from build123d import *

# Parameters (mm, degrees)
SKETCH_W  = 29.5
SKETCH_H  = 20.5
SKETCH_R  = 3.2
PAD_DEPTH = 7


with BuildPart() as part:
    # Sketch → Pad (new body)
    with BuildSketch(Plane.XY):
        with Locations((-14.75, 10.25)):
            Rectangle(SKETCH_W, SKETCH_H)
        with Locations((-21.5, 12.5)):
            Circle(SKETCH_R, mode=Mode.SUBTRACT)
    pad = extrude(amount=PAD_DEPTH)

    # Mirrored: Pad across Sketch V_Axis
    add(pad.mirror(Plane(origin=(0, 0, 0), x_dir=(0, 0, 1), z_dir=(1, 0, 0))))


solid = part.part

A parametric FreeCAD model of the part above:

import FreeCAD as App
import Part
import Sketcher

V = App.Vector
Q = App.Units.Quantity


def add_polygon(sketch, points):
    """Adds a closed chain of lines whose ends are joined by coincident constraints."""
    first, n = sketch.GeometryCount, len(points)
    for a, b in zip(points, points[1:] + points[:1]):
        sketch.addGeometry(Part.LineSegment(App.Vector(*a, 0), App.Vector(*b, 0)), False)
    for i in range(n):
        sketch.addConstraint(Sketcher.Constraint("Coincident", first + i, 2, first + (i + 1) % n, 1))

doc = App.newDocument("Part")
body = doc.addObject("PartDesign::Body", "Body")

sketch1 = doc.addObject("Sketcher::SketchObject", "Sketch")
body.addObject(sketch1)
sketch1.AttachmentSupport = (doc.XY_Plane, [""])
sketch1.MapMode = "FlatFace"
add_polygon(sketch1, [(-29.5, 20.5), (-29.5, 0), (0, 0), (0, 20.5)])
sketch1.addGeometry(Part.Circle(V(-21.5, 12.5, 0), V(0, 0, 1), 3.2), False)
sketch1.addConstraint(Sketcher.Constraint("Vertical", 0))
sketch1.addConstraint(Sketcher.Constraint("Horizontal", 1))
sketch1.addConstraint(Sketcher.Constraint("Vertical", 2))
sketch1.addConstraint(Sketcher.Constraint("Horizontal", 3))
sketch1.addConstraint(Sketcher.Constraint("Coincident", 1, 2, -1, 1))
sketch1.addConstraint(Sketcher.Constraint("Diameter", 4, Q("6.4 mm")))
sketch1.addConstraint(Sketcher.Constraint("DistanceX", 1, 1, 1, 2, Q("29.5 mm")))
sketch1.addConstraint(Sketcher.Constraint("DistanceY", 0, 2, 0, 1, Q("20.5 mm")))
sketch1.addConstraint(Sketcher.Constraint("DistanceX", 0, 2, 4, 3, Q("8 mm")))
sketch1.addConstraint(Sketcher.Constraint("DistanceY", 4, 3, 2, 2, Q("8 mm")))
pad1 = doc.addObject("PartDesign::Pad", "Pad")
body.addObject(pad1)
pad1.Profile = sketch1
pad1.Length = 7
doc.recompute()

mirrored = doc.addObject("PartDesign::Mirrored", "Mirrored")
body.addObject(mirrored)
mirrored.Originals = [pad1]
mirrored.MirrorPlane = (doc.YZ_Plane, [""])
body.Tip = mirrored

doc.recompute()
